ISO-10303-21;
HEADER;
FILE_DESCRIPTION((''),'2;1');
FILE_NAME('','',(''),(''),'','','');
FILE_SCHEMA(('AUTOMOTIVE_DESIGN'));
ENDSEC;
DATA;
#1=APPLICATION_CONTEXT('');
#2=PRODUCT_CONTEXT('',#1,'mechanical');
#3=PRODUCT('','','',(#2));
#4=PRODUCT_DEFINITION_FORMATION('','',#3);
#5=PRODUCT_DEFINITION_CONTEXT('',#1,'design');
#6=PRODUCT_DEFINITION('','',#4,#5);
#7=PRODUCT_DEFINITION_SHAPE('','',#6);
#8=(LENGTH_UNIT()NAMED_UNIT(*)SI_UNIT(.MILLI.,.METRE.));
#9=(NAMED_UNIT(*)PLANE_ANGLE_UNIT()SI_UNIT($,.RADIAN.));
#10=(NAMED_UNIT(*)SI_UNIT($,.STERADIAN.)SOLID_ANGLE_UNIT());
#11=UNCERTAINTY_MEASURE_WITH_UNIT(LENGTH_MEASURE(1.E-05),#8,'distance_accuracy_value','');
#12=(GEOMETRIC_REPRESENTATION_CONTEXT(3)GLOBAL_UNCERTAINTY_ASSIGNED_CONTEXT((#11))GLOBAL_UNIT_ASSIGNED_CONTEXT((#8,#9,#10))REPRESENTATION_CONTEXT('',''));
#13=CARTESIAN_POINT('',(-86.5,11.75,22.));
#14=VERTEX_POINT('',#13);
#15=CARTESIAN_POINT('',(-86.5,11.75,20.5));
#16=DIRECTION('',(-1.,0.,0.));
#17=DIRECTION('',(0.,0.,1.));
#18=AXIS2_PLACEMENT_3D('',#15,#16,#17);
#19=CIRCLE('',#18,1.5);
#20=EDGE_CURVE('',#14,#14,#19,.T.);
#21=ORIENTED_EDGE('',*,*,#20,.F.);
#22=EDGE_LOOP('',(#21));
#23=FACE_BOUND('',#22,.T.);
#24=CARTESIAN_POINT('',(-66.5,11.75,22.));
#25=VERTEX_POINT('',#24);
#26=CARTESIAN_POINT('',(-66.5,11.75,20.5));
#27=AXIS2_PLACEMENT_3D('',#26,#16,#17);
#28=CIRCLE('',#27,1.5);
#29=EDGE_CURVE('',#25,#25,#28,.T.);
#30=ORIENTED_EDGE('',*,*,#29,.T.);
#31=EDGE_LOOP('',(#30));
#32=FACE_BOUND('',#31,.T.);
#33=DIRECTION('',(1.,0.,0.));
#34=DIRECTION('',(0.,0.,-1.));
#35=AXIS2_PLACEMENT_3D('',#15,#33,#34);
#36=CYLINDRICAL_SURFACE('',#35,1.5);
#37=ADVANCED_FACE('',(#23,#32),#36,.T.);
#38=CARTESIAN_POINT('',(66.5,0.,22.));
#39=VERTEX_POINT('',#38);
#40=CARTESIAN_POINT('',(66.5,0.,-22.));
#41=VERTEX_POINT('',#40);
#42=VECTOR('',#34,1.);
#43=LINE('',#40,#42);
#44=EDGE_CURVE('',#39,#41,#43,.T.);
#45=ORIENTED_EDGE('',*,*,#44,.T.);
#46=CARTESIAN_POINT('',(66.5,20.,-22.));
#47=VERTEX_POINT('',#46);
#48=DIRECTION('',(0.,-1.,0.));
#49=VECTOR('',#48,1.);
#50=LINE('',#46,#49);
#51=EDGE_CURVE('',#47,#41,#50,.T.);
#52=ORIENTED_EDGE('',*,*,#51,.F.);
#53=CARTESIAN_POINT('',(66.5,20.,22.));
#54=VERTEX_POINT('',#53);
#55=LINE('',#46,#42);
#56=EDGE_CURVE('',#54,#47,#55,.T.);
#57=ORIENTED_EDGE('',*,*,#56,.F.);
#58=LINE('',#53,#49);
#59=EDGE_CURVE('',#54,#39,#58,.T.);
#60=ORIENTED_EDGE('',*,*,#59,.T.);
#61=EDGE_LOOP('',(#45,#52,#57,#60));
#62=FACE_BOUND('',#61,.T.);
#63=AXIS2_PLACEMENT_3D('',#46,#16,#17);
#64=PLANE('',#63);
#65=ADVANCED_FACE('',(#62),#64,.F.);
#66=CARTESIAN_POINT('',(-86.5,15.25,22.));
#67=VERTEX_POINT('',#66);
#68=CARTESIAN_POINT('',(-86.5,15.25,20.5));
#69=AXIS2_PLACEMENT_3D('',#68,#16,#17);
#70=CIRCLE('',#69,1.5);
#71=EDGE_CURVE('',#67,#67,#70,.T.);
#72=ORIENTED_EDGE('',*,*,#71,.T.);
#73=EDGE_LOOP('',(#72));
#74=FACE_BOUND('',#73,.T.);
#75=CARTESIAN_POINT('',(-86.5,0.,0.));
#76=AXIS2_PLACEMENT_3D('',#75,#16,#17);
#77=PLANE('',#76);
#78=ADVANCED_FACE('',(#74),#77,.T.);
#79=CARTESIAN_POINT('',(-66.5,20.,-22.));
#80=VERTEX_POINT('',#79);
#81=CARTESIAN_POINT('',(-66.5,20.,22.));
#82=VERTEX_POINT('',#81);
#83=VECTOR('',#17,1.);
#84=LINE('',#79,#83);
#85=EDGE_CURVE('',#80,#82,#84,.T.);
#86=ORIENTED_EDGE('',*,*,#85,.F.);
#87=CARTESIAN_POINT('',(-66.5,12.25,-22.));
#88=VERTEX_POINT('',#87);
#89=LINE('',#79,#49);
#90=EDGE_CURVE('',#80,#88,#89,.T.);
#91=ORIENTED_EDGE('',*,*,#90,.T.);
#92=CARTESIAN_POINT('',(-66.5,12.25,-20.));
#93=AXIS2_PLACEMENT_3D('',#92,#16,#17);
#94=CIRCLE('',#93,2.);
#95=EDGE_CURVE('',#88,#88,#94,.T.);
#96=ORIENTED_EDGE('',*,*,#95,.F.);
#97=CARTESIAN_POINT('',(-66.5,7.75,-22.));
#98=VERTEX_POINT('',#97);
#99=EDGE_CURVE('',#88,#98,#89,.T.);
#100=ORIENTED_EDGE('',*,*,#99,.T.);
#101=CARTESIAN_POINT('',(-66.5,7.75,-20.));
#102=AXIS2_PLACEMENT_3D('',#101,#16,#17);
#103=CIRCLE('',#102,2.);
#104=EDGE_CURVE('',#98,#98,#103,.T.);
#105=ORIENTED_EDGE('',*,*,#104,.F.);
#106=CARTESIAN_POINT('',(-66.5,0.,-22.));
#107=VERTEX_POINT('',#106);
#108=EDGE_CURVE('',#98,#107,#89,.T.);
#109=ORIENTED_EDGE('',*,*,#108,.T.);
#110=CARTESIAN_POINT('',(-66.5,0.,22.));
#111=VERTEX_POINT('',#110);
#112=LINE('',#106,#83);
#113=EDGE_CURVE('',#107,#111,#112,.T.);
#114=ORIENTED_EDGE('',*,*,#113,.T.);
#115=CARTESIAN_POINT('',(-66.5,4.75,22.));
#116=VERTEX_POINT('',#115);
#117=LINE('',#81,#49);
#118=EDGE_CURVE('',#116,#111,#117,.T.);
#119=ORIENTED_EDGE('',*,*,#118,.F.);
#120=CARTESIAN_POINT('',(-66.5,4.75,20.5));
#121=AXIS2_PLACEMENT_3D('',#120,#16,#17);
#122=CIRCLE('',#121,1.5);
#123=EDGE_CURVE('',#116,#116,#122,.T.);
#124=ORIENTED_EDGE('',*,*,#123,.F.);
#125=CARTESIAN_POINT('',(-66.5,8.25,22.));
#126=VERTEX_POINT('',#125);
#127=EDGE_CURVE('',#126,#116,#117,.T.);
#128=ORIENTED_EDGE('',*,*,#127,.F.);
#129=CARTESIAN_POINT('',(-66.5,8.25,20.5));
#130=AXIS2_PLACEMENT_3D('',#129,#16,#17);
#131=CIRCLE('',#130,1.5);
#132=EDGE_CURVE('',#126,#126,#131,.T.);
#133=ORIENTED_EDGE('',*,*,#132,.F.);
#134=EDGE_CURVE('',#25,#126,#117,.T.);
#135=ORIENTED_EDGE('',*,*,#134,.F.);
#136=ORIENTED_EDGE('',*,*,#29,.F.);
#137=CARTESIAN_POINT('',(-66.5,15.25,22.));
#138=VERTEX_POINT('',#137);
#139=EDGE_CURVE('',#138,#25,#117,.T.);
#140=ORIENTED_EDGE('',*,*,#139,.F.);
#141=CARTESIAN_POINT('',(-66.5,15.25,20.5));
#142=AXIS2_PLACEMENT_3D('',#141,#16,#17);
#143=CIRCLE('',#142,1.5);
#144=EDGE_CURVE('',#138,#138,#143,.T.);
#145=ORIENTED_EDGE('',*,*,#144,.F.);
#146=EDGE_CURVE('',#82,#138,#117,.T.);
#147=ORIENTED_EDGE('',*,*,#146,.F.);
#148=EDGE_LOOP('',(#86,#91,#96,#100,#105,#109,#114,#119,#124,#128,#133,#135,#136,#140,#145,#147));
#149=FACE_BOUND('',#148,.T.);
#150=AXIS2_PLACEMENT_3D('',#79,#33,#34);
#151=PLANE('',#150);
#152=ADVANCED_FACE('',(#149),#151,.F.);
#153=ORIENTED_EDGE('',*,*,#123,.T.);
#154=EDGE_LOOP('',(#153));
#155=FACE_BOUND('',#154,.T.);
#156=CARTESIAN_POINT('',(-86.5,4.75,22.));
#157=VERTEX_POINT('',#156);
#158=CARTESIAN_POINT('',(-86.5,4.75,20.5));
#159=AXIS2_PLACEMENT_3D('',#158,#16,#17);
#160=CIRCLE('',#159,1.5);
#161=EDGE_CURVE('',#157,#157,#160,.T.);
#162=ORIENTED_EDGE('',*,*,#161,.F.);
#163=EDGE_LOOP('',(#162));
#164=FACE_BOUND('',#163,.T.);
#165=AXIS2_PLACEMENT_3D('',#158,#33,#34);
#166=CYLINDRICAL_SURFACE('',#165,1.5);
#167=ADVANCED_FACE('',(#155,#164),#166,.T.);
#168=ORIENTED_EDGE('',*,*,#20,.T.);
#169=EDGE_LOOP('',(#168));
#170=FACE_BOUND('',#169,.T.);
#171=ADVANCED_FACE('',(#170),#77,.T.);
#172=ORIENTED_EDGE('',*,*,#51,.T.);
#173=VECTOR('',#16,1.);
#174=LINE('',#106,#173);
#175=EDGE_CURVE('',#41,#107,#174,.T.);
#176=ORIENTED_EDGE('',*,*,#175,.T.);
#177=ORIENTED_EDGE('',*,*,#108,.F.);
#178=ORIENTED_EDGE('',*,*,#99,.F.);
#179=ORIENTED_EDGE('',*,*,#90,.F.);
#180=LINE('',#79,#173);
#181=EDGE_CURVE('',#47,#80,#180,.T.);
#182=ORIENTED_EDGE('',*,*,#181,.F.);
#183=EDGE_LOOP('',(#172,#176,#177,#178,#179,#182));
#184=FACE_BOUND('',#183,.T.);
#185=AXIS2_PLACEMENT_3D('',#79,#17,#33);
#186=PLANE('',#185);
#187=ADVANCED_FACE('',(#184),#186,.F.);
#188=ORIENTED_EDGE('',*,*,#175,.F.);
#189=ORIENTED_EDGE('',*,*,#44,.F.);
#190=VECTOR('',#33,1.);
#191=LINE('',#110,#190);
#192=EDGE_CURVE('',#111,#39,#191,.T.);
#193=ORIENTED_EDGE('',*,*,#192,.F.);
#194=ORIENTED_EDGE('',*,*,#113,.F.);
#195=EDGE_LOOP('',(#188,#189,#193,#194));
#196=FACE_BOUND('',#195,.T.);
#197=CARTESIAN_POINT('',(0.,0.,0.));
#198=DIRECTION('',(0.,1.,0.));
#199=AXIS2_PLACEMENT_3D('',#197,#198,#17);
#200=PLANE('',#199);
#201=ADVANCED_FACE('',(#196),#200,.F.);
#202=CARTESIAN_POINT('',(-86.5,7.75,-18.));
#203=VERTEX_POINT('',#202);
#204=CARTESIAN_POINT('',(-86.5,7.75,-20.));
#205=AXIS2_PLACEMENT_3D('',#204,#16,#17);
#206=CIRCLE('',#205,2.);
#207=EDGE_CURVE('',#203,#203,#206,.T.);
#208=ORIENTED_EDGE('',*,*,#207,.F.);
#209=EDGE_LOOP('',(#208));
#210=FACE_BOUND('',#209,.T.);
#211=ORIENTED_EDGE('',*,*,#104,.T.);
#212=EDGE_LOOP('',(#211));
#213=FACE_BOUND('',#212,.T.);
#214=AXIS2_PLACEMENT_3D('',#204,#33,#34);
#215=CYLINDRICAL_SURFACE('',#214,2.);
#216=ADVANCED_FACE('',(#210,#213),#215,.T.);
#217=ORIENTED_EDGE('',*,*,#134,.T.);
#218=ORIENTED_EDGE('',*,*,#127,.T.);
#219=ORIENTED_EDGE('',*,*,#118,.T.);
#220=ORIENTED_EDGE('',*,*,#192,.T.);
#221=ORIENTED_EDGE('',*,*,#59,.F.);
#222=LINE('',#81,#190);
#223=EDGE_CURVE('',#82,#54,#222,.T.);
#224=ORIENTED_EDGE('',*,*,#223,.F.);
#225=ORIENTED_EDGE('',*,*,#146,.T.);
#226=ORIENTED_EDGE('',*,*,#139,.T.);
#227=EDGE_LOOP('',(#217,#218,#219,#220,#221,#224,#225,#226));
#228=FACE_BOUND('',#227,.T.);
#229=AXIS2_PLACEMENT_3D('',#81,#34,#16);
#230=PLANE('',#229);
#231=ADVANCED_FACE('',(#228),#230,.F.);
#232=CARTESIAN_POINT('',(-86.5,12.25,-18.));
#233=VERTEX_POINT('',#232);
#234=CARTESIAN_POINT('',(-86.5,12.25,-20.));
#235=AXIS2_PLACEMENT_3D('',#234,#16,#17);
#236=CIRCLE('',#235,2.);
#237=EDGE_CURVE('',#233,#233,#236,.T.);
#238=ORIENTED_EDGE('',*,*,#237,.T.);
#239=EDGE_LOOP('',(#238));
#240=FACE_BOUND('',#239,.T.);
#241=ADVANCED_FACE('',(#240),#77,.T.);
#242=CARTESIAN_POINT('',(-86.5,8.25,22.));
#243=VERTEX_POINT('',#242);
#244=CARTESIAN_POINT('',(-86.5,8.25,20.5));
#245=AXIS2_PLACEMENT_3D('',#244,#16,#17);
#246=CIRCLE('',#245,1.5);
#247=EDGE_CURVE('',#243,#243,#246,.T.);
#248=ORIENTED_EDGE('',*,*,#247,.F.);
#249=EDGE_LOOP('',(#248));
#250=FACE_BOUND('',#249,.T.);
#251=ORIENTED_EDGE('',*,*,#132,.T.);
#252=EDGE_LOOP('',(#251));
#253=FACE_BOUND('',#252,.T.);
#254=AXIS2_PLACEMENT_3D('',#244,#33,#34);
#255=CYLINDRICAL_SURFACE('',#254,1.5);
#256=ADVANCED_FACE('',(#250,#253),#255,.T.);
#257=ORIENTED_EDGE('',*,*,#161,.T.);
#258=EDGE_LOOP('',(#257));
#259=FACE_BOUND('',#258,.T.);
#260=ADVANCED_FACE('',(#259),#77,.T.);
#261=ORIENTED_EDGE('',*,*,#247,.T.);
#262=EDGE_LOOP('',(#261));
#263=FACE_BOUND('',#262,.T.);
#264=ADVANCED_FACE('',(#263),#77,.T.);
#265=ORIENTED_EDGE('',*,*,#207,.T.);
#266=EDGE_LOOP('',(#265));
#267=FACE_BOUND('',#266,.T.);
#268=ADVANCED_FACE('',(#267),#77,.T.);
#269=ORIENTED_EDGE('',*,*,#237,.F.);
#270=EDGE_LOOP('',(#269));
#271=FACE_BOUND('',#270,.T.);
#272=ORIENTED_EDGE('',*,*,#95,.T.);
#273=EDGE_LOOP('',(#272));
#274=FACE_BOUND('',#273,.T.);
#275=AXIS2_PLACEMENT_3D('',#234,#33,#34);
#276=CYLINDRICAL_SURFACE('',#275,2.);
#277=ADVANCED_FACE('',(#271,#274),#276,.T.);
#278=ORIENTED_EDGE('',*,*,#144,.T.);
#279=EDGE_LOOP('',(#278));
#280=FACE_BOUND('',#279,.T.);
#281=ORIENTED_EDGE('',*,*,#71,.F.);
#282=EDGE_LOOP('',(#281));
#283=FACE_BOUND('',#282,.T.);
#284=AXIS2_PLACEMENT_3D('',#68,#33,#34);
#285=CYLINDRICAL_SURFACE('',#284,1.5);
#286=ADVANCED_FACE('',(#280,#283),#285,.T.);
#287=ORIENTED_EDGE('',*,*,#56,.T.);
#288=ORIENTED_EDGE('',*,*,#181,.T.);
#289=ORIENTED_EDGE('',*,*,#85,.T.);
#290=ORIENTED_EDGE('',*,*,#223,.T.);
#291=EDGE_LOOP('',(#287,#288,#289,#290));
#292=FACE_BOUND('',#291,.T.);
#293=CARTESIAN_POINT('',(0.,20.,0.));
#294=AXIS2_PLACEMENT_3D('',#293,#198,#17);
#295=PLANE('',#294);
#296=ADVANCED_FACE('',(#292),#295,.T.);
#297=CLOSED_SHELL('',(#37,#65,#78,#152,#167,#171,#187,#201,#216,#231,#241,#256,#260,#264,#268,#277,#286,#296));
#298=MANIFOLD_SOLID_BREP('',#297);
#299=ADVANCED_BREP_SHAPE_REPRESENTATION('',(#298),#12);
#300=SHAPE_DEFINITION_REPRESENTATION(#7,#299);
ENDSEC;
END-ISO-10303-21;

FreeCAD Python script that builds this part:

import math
import FreeCAD as App
import Part
import Sketcher

V = App.Vector
Q = App.Units.Quantity

doc = App.newDocument("Part")
body = doc.addObject("PartDesign::Body", "Body")

# Sketch on XZ plane
sketch1 = body.newObject("Sketcher::SketchObject", "Sketch")
sketch1.AttachmentSupport = (doc.getObject("XZ_Plane"), [""])
sketch1.MapMode = "FlatFace"
sketch1.addGeometry(Part.LineSegment(V(-66, -22, 0), V(-66, 22, 0)), False)
sketch1.addGeometry(Part.LineSegment(V(-66, 22, 0), V(66, 22, 0)), False)
sketch1.addGeometry(Part.LineSegment(V(66, 22, 0), V(66, -22, 0)), False)
sketch1.addGeometry(Part.LineSegment(V(66, -22, 0), V(-66, -22, 0)), False)
sketch1.addConstraint(Sketcher.Constraint("Coincident", 0, 2, 1, 1))
sketch1.addConstraint(Sketcher.Constraint("Coincident", 1, 2, 2, 1))
sketch1.addConstraint(Sketcher.Constraint("Coincident", 2, 2, 3, 1))
sketch1.addConstraint(Sketcher.Constraint("Coincident", 3, 2, 0, 1))
sketch1.addConstraint(Sketcher.Constraint("Vertical", 0))
sketch1.addConstraint(Sketcher.Constraint("Horizontal", 1))
sketch1.addConstraint(Sketcher.Constraint("Vertical", 2))
sketch1.addConstraint(Sketcher.Constraint("Horizontal", 3))
sketch1.addConstraint(Sketcher.Constraint("Symmetric", 0, 2, 2, 2, -1, 1))
sketch1.addConstraint(Sketcher.Constraint("DistanceX", 1, 1, 1, 2, Q("133 mm")))
sketch1.addConstraint(Sketcher.Constraint("DistanceY", 0, 1, 0, 2, Q("44 mm")))
pad1 = body.newObject("PartDesign::Pad", "Pad")
pad1.Profile = sketch1
pad1.Length = 20
pad1.Reversed = True

# Sketch on YZ plane
sketch2 = body.newObject("Sketcher::SketchObject", "Sketch001")
sketch2.AttachmentSupport = (doc.getObject("YZ_Plane"), [""])
sketch2.MapMode = "FlatFace"
sketch2.AttachmentOffset = App.Placement(V(0, 0, -66.5), App.Rotation())
sketch2.addGeometry(Part.ArcOfCircle(Part.Circle(V(12.2, -20, 0), V(0, 0, 1), 2), math.radians(-14), math.radians(90)), False)
sketch2.addGeometry(Part.ArcOfCircle(Part.Circle(V(12.2, -20, 0), V(0, 0, 1), 2), math.radians(180), math.radians(346)), False)
sketch2.addGeometry(Part.ArcOfCircle(Part.Circle(V(12.3, -20, 0), V(0, 0, 1), 2), math.radians(90), math.radians(180)), False)
sketch2.addGeometry(Part.ArcOfCircle(Part.Circle(V(7.7, -20, 0), V(0, 0, 1), 2), math.radians(0), math.radians(90)), False)
sketch2.addGeometry(Part.ArcOfCircle(Part.Circle(V(7.8, -20, 0), V(0, 0, 1), 2), math.radians(-166), math.radians(0)), False)
sketch2.addGeometry(Part.ArcOfCircle(Part.Circle(V(7.8, -20, 0), V(0, 0, 1), 2), math.radians(90), math.radians(194)), False)
sketch2.addGeometry(Part.ArcOfCircle(Part.Circle(V(15.2, 20.5, 0), V(0, 0, 1), 1.5), math.radians(18), math.radians(90)), False)
sketch2.addGeometry(Part.ArcOfCircle(Part.Circle(V(15.2, 20.5, 0), V(0, 0, 1), 1.5), math.radians(180), math.radians(378)), False)
sketch2.addGeometry(Part.ArcOfCircle(Part.Circle(V(15.2, 20.5, 0), V(0, 0, 1), 1.5), math.radians(90), math.radians(180)), False)
sketch2.addGeometry(Part.ArcOfCircle(Part.Circle(V(11.8, 20.5, 0), V(0, 0, 1), 1.5), math.radians(0), math.radians(90)), False)
sketch2.addGeometry(Part.ArcOfCircle(Part.Circle(V(11.8, 20.5, 0), V(0, 0, 1), 1.5), math.radians(180), math.radians(360)), False)
sketch2.addGeometry(Part.ArcOfCircle(Part.Circle(V(11.7, 20.5, 0), V(0, 0, 1), 1.5), math.radians(90), math.radians(180)), False)
sketch2.addGeometry(Part.ArcOfCircle(Part.Circle(V(8.3, 20.5, 0), V(0, 0, 1), 1.5), math.radians(0), math.radians(90)), False)
sketch2.addGeometry(Part.ArcOfCircle(Part.Circle(V(8.2, 20.5, 0), V(0, 0, 1), 1.5), math.radians(180), math.radians(360)), False)
sketch2.addGeometry(Part.ArcOfCircle(Part.Circle(V(8.2, 20.5, 0), V(0, 0, 1), 1.5), math.radians(90), math.radians(180)), False)
sketch2.addGeometry(Part.ArcOfCircle(Part.Circle(V(4.8, 20.5, 0), V(0, 0, 1), 1.5), math.radians(0), math.radians(90)), False)
sketch2.addGeometry(Part.ArcOfCircle(Part.Circle(V(4.8, 20.5, 0), V(0, 0, 1), 1.5), math.radians(162), math.radians(360)), False)
sketch2.addGeometry(Part.ArcOfCircle(Part.Circle(V(4.8, 20.5, 0), V(0, 0, 1), 1.5), math.radians(90), math.radians(162)), False)
sketch2.addConstraint(Sketcher.Constraint("Tangent", 0, 1, 1, 2))
sketch2.addConstraint(Sketcher.Constraint("Tangent", 1, 1, 2, 2))
sketch2.addConstraint(Sketcher.Constraint("Tangent", 2, 1, 0, 2))
sketch2.addConstraint(Sketcher.Constraint("Tangent", 3, 1, 4, 2))
sketch2.addConstraint(Sketcher.Constraint("Tangent", 4, 1, 5, 2))
sketch2.addConstraint(Sketcher.Constraint("Tangent", 5, 1, 3, 2))
sketch2.addConstraint(Sketcher.Constraint("Tangent", 6, 1, 7, 2))
sketch2.addConstraint(Sketcher.Constraint("Tangent", 7, 1, 8, 2))
sketch2.addConstraint(Sketcher.Constraint("Tangent", 8, 1, 6, 2))
sketch2.addConstraint(Sketcher.Constraint("Tangent", 9, 1, 10, 2))
sketch2.addConstraint(Sketcher.Constraint("Tangent", 10, 1, 11, 2))
sketch2.addConstraint(Sketcher.Constraint("Tangent", 11, 1, 9, 2))
sketch2.addConstraint(Sketcher.Constraint("Tangent", 12, 1, 13, 2))
sketch2.addConstraint(Sketcher.Constraint("Tangent", 13, 1, 14, 2))
sketch2.addConstraint(Sketcher.Constraint("Tangent", 14, 1, 12, 2))
sketch2.addConstraint(Sketcher.Constraint("Tangent", 15, 1, 16, 2))
sketch2.addConstraint(Sketcher.Constraint("Tangent", 16, 1, 17, 2))
sketch2.addConstraint(Sketcher.Constraint("Tangent", 17, 1, 15, 2))
sketch2.addConstraint(Sketcher.Constraint("Equal", 2, 3))
sketch2.addConstraint(Sketcher.Constraint("Equal", 8, 9))
sketch2.addConstraint(Sketcher.Constraint("Equal", 11, 12))
sketch2.addConstraint(Sketcher.Constraint("Equal", 14, 15))
sketch2.addConstraint(Sketcher.Constraint("Horizontal", 2, 3, 3, 3))
sketch2.addConstraint(Sketcher.Constraint("Horizontal", 8, 3, 9, 3))
sketch2.addConstraint(Sketcher.Constraint("Horizontal", 11, 3, 12, 3))
sketch2.addConstraint(Sketcher.Constraint("Horizontal", 14, 3, 15, 3))
sketch2.addConstraint(Sketcher.Constraint("Horizontal", 5, 3, 1, 1))
sketch2.addConstraint(Sketcher.Constraint("Horizontal", 1, 1, 3, 1))
sketch2.addConstraint(Sketcher.Constraint("Horizontal", 0, 1, 4, 1))
sketch2.addConstraint(Sketcher.Constraint("Horizontal", 17, 3, 7, 1))
sketch2.addConstraint(Sketcher.Constraint("Horizontal", 7, 1, 9, 1))
sketch2.addConstraint(Sketcher.Constraint("Horizontal", 9, 1, 10, 1))
sketch2.addConstraint(Sketcher.Constraint("Horizontal", 10, 1, 12, 1))
sketch2.addConstraint(Sketcher.Constraint("Horizontal", 12, 1, 13, 1))
sketch2.addConstraint(Sketcher.Constraint("Horizontal", 13, 1, 15, 1))
sketch2.addConstraint(Sketcher.Constraint("Horizontal", 6, 1, 16, 1))
sketch2.addConstraint(Sketcher.Constraint("Vertical", 1, 3, 2, 1))
sketch2.addConstraint(Sketcher.Constraint("Vertical", 4, 3, 5, 1))
sketch2.addConstraint(Sketcher.Constraint("Vertical", 7, 3, 8, 1))
sketch2.addConstraint(Sketcher.Constraint("Vertical", 1, 1, 10, 1))
sketch2.addConstraint(Sketcher.Constraint("Vertical", 10, 3, 11, 1))
sketch2.addConstraint(Sketcher.Constraint("Vertical", 3, 1, 12, 1))
sketch2.addConstraint(Sketcher.Constraint("Vertical", 13, 3, 14, 1))
sketch2.addConstraint(Sketcher.Constraint("Vertical", 16, 3, 17, 1))
sketch2.addConstraint(Sketcher.Constraint("Radius", 0, Q("2 mm")))
sketch2.addConstraint(Sketcher.Constraint("Radius", 6, Q("1.5 mm")))
sketch2.addConstraint(Sketcher.Constraint("DistanceY", 0, 3, -1, 1, Q("20 mm")))
sketch2.addConstraint(Sketcher.Constraint("DistanceY", -1, 1, 8, 1, Q("22 mm")))
sketch2.addConstraint(Sketcher.Constraint("DistanceX", 0, 3, 6, 3, Q("3 mm")))
sketch2.addConstraint(Sketcher.Constraint("DistanceX", 12, 3, 6, 3, Q("7 mm")))
sketch2.addConstraint(Sketcher.Constraint("DistanceX", 15, 3, 11, 3, Q("7 mm")))
sketch2.addConstraint(Sketcher.Constraint("DistanceX", -1, 1, 0, 3, Q("12.25 mm")))
sketch2.addConstraint(Sketcher.Constraint("DistanceX", -1, 1, 0, 1, Q("14.186555 mm")))
sketch2.addConstraint(Sketcher.Constraint("DistanceX", -1, 1, 6, 1, Q("16.680374 mm")))
pad2 = body.newObject("PartDesign::Pad", "Pad001")
pad2.Profile = sketch2
pad2.Length = 20
pad2.Reversed = True

doc.recompute()
